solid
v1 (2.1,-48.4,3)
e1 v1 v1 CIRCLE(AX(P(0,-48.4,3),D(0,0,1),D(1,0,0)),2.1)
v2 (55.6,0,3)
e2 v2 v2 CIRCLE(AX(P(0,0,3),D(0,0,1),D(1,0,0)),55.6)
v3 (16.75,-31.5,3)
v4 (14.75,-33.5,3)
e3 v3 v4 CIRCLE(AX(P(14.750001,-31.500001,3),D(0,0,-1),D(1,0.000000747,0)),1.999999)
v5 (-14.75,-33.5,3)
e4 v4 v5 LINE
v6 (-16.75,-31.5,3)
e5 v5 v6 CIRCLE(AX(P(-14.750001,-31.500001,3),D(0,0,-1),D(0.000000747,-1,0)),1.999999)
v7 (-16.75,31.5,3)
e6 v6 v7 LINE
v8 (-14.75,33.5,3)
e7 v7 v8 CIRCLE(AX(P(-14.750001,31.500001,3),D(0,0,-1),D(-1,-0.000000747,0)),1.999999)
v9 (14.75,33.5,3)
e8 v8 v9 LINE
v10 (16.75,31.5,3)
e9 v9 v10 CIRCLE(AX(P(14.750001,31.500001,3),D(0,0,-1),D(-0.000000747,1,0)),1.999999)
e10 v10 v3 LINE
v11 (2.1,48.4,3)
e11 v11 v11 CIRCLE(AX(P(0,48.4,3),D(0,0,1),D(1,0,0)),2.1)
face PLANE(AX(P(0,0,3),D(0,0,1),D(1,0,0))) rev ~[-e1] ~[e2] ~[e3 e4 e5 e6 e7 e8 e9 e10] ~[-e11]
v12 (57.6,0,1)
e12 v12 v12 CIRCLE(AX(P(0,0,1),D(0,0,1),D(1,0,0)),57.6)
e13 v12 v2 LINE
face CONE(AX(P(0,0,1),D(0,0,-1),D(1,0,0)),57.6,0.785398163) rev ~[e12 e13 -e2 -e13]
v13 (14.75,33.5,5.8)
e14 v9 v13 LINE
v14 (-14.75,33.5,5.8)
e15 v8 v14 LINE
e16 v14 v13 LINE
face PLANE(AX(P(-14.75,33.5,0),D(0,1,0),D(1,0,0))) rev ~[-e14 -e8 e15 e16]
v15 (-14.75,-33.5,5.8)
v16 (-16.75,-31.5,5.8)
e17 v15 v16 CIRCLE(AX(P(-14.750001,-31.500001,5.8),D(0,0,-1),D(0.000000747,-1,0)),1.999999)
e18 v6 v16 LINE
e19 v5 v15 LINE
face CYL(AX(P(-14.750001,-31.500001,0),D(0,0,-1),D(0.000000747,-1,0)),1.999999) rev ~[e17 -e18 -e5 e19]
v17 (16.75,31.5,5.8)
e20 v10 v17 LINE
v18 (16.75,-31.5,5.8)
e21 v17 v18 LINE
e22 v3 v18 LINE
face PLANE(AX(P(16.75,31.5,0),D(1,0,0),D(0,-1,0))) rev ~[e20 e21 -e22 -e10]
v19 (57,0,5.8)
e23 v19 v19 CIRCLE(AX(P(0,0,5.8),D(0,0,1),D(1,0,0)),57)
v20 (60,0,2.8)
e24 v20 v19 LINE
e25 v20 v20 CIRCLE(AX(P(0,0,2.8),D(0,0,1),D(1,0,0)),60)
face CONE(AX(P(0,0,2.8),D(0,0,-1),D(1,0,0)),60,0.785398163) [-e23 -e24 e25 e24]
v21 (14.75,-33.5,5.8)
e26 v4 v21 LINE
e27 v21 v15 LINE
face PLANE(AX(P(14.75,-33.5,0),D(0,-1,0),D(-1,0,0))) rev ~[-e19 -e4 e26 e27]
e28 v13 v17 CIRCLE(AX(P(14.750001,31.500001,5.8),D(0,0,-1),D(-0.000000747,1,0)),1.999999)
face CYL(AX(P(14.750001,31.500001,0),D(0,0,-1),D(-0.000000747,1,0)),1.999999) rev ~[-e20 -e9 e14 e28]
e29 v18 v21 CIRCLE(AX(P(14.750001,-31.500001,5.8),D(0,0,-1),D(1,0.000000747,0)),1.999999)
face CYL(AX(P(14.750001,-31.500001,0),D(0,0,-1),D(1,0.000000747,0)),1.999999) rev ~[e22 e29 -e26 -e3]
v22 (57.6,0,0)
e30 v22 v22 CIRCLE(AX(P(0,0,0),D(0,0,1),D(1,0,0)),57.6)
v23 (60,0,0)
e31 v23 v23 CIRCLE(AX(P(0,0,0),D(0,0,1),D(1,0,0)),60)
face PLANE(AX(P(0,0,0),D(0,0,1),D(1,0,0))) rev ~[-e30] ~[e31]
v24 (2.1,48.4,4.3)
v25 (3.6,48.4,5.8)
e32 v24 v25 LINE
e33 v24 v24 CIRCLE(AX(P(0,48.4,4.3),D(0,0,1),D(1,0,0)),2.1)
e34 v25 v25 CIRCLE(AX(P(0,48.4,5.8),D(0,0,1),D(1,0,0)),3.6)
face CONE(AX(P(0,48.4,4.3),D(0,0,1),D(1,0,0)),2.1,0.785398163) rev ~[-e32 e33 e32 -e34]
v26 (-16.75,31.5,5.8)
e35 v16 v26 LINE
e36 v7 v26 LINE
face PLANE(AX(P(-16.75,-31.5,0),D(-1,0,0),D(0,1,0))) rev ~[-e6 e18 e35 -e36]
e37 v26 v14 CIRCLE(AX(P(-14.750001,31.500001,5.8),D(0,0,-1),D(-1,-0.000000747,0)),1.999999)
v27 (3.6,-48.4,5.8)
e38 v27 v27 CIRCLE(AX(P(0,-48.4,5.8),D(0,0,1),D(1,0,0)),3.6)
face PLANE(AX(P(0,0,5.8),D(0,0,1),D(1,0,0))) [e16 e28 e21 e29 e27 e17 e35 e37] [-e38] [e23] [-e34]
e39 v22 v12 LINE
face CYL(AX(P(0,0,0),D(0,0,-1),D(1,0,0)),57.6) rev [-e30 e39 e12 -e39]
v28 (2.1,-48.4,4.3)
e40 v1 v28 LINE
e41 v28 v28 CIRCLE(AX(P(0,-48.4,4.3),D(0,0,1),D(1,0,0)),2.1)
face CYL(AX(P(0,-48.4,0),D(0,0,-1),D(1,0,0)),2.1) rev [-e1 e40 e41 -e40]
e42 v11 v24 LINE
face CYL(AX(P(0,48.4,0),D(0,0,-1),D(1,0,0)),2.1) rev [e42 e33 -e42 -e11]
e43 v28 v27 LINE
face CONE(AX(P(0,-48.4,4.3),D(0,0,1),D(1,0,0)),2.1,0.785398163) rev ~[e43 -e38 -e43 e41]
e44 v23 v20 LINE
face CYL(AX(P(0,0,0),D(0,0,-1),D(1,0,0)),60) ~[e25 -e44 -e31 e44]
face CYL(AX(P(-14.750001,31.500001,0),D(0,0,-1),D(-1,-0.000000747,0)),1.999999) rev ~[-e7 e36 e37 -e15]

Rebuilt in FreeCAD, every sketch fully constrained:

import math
import FreeCAD as App
import Part
import Sketcher

V = App.Vector
Q = App.Units.Quantity


def edges_at(feature, points):
    """Names of the edges that pass closest to the given points."""
    edges = feature.Shape.Edges
    near = lambda p: min(range(len(edges)), key=lambda i: edges[i].distToShape(Part.Vertex(*p))[0])
    return sorted({f"Edge{near(p) + 1}" for p in points})

doc = App.newDocument("Part")
body = doc.addObject("PartDesign::Body", "Body")

# Sketch on XY plane
sketch1 = doc.addObject("Sketcher::SketchObject", "Sketch")
body.addObject(sketch1)
sketch1.AttachmentSupport = (doc.XY_Plane, [""])
sketch1.MapMode = "FlatFace"
sketch1.addGeometry(Part.Circle(V(0, 0, 0), V(0, 0, 1), 60), False)
sketch1.addGeometry(Part.Circle(V(0, -48.4, 0), V(0, 0, 1), 2.1), False)
sketch1.addGeometry(Part.ArcOfCircle(Part.Circle(V(-14.8, 31.5, 0), V(0, 0, 1), 2), math.radians(90), math.radians(180)), False)
sketch1.addGeometry(Part.LineSegment(V(-14.8, 33.5, 0), V(14.8, 33.5, 0)), False)
sketch1.addGeometry(Part.ArcOfCircle(Part.Circle(V(14.8, 31.5, 0), V(0, 0, 1), 2), math.radians(0), math.radians(90)), False)
sketch1.addGeometry(Part.LineSegment(V(16.8, 31.5, 0), V(16.8, -31.5, 0)), False)
sketch1.addGeometry(Part.ArcOfCircle(Part.Circle(V(14.8, -31.5, 0), V(0, 0, 1), 2), math.radians(-90), math.radians(0)), False)
sketch1.addGeometry(Part.LineSegment(V(14.8, -33.5, 0), V(-14.8, -33.5, 0)), False)
sketch1.addGeometry(Part.ArcOfCircle(Part.Circle(V(-14.8, -31.5, 0), V(0, 0, 1), 2), math.radians(180), math.radians(270)), False)
sketch1.addGeometry(Part.LineSegment(V(-16.8, -31.5, 0), V(-16.8, 31.5, 0)), False)
sketch1.addGeometry(Part.Circle(V(0, 48.4, 0), V(0, 0, 1), 2.1), False)
sketch1.addConstraint(Sketcher.Constraint("Tangent", 2, 1, 3, 1))
sketch1.addConstraint(Sketcher.Constraint("Tangent", 3, 2, 4, 2))
sketch1.addConstraint(Sketcher.Constraint("Tangent", 4, 1, 5, 1))
sketch1.addConstraint(Sketcher.Constraint("Tangent", 5, 2, 6, 2))
sketch1.addConstraint(Sketcher.Constraint("Tangent", 6, 1, 7, 1))
sketch1.addConstraint(Sketcher.Constraint("Tangent", 7, 2, 8, 2))
sketch1.addConstraint(Sketcher.Constraint("Tangent", 8, 1, 9, 1))
sketch1.addConstraint(Sketcher.Constraint("Tangent", 9, 2, 2, 2))
sketch1.addConstraint(Sketcher.Constraint("Horizontal", 3))
sketch1.addConstraint(Sketcher.Constraint("Vertical", 5))
sketch1.addConstraint(Sketcher.Constraint("Horizontal", 7))
sketch1.addConstraint(Sketcher.Constraint("Vertical", 9))
sketch1.addConstraint(Sketcher.Constraint("Coincident", 0, 3, -1, 1))
sketch1.addConstraint(Sketcher.Constraint("Equal", 2, 4))
sketch1.addConstraint(Sketcher.Constraint("Equal", 4, 6))
sketch1.addConstraint(Sketcher.Constraint("Equal", 6, 8))
sketch1.addConstraint(Sketcher.Constraint("Equal", 1, 10))
sketch1.addConstraint(Sketcher.Constraint("Symmetric", 2, 3, 6, 3, -1, 1))
sketch1.addConstraint(Sketcher.Constraint("Symmetric", 1, 3, 10, 3, -1, 1))
sketch1.addConstraint(Sketcher.Constraint("PointOnObject", 1, 3, -2))
sketch1.addConstraint(Sketcher.Constraint("Diameter", 0, Q("120 mm")))
sketch1.addConstraint(Sketcher.Constraint("Radius", 2, Q("1.999999 mm")))
sketch1.addConstraint(Sketcher.Constraint("Diameter", 1, Q("4.2 mm")))
sketch1.addConstraint(Sketcher.Constraint("DistanceY", 5, 2, 5, 1, Q("63 mm")))
sketch1.addConstraint(Sketcher.Constraint("DistanceX", 3, 1, 3, 2, Q("29.5 mm")))
sketch1.addConstraint(Sketcher.Constraint("DistanceY", 1, 3, -1, 1, Q("48.4 mm")))
pad1 = doc.addObject("PartDesign::Pad", "Pad")
body.addObject(pad1)
pad1.Profile = sketch1
pad1.Length = 5.8
doc.recompute()

chamfer = doc.addObject("PartDesign::Chamfer", "Chamfer")
body.addObject(chamfer)
chamfer.Base = (pad1, edges_at(pad1, [(-60, 0, 5.8)]))
chamfer.Size = 3

# Sketch on XY plane
sketch2 = doc.addObject("Sketcher::SketchObject", "Sketch001")
body.addObject(sketch2)
sketch2.AttachmentSupport = (doc.XY_Plane, [""])
sketch2.MapMode = "FlatFace"
sketch2.addGeometry(Part.Circle(V(0, 0, 0), V(0, 0, 1), 57.6), False)
sketch2.addGeometry(Part.Circle(V(0, -48.4, 0), V(0, 0, 1), 2.1), False)
sketch2.addGeometry(Part.Circle(V(0, 48.4, 0), V(0, 0, 1), 2.1), False)
sketch2.addGeometry(Part.ArcOfCircle(Part.Circle(V(-14.8, 31.5, 0), V(0, 0, 1), 2), math.radians(90), math.radians(180)), False)
sketch2.addGeometry(Part.LineSegment(V(-14.8, 33.5, 0), V(14.8, 33.5, 0)), False)
sketch2.addGeometry(Part.ArcOfCircle(Part.Circle(V(14.8, 31.5, 0), V(0, 0, 1), 2), math.radians(0), math.radians(90)), False)
sketch2.addGeometry(Part.LineSegment(V(16.8, 31.5, 0), V(16.8, -31.5, 0)), False)
sketch2.addGeometry(Part.ArcOfCircle(Part.Circle(V(14.8, -31.5, 0), V(0, 0, 1), 2), math.radians(-90), math.radians(0)), False)
sketch2.addGeometry(Part.LineSegment(V(14.8, -33.5, 0), V(-14.8, -33.5, 0)), False)
sketch2.addGeometry(Part.ArcOfCircle(Part.Circle(V(-14.8, -31.5, 0), V(0, 0, 1), 2), math.radians(180), math.radians(270)), False)
sketch2.addGeometry(Part.LineSegment(V(-16.8, -31.5, 0), V(-16.8, 31.5, 0)), False)
sketch2.addConstraint(Sketcher.Constraint("Tangent", 3, 1, 4, 1))
sketch2.addConstraint(Sketcher.Constraint("Tangent", 4, 2, 5, 2))
sketch2.addConstraint(Sketcher.Constraint("Tangent", 5, 1, 6, 1))
sketch2.addConstraint(Sketcher.Constraint("Tangent", 6, 2, 7, 2))
sketch2.addConstraint(Sketcher.Constraint("Tangent", 7, 1, 8, 1))
sketch2.addConstraint(Sketcher.Constraint("Tangent", 8, 2, 9, 2))
sketch2.addConstraint(Sketcher.Constraint("Tangent", 9, 1, 10, 1))
sketch2.addConstraint(Sketcher.Constraint("Tangent", 10, 2, 3, 2))
sketch2.addConstraint(Sketcher.Constraint("Horizontal", 4))
sketch2.addConstraint(Sketcher.Constraint("Vertical", 6))
sketch2.addConstraint(Sketcher.Constraint("Horizontal", 8))
sketch2.addConstraint(Sketcher.Constraint("Vertical", 10))
sketch2.addConstraint(Sketcher.Constraint("Coincident", 0, 3, -1, 1))
sketch2.addConstraint(Sketcher.Constraint("Equal", 1, 2))
sketch2.addConstraint(Sketcher.Constraint("Equal", 3, 5))
sketch2.addConstraint(Sketcher.Constraint("Equal", 5, 7))
sketch2.addConstraint(Sketcher.Constraint("Equal", 7, 9))
sketch2.addConstraint(Sketcher.Constraint("Symmetric", 1, 3, 2, 3, -1, 1))
sketch2.addConstraint(Sketcher.Constraint("Symmetric", 3, 3, 7, 3, -1, 1))
sketch2.addConstraint(Sketcher.Constraint("PointOnObject", 1, 3, -2))
sketch2.addConstraint(Sketcher.Constraint("Radius", 3, Q("1.999999 mm")))
sketch2.addConstraint(Sketcher.Constraint("Diameter", 0, Q("115.2 mm")))
sketch2.addConstraint(Sketcher.Constraint("Diameter", 1, Q("4.2 mm")))
sketch2.addConstraint(Sketcher.Constraint("DistanceY", 6, 2, 6, 1, Q("63 mm")))
sketch2.addConstraint(Sketcher.Constraint("DistanceX", 4, 1, 4, 2, Q("29.5 mm")))
sketch2.addConstraint(Sketcher.Constraint("DistanceY", 1, 3, -1, 1, Q("48.4 mm")))
pocket1 = doc.addObject("PartDesign::Pocket", "Pocket")
body.addObject(pocket1)
pocket1.Profile = sketch2
pocket1.Length = 3
pocket1.Reversed = True
doc.recompute()

chamfer2 = doc.addObject("PartDesign::Chamfer", "Chamfer001")
body.addObject(chamfer2)
chamfer2.Base = (pocket1, edges_at(pocket1, [(-57.6, 0, 3)]))
chamfer2.Size = 2
doc.recompute()

chamfer3 = doc.addObject("PartDesign::Chamfer", "Chamfer002")
body.addObject(chamfer3)
chamfer3.Base = (chamfer2, edges_at(chamfer2, [(-2.1, -48.4, 5.8), (-2.1, 48.4, 5.8)]))
chamfer3.Size = 1.5

doc.recompute()
